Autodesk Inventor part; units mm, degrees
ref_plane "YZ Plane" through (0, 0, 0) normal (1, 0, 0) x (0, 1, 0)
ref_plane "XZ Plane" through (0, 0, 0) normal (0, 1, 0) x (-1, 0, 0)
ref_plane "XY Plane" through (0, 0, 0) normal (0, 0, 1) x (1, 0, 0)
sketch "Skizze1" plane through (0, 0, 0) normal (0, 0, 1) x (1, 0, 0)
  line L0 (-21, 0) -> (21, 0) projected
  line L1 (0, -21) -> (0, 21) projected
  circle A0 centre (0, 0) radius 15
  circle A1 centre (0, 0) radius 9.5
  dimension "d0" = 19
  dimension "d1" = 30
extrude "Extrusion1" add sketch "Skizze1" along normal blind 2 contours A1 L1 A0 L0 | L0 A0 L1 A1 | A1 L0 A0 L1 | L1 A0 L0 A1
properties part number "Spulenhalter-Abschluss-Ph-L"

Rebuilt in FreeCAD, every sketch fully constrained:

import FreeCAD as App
import Part
import Sketcher
from FreeCAD import Vector

doc = App.newDocument("Part")
body = doc.addObject("PartDesign::Body", "Body")

sketch1 = body.newObject("Sketcher::SketchObject", "Sketch")
sketch1.AttachmentSupport = (doc.getObject("XY_Plane"), [""])
sketch1.MapMode = "FlatFace"
sketch1.addGeometry(Part.Circle(Vector(0, 0, 0), Vector(0, 0, 1), 15), False)
sketch1.addGeometry(Part.Circle(Vector(0, 0, 0), Vector(0, 0, 1), 10), False)
sketch1.addConstraint(Sketcher.Constraint("Coincident", 0, 3, -1, 1))
sketch1.addConstraint(Sketcher.Constraint("Coincident", 1, 3, -1, 1))
sketch1.addConstraint(Sketcher.Constraint("Diameter", 0, 30.0))
sketch1.addConstraint(Sketcher.Constraint("Diameter", 1, 19.0))
pad1 = body.newObject("PartDesign::Pad", "Pad")
pad1.Profile = sketch1
pad1.Length = 2

doc.recompute()
